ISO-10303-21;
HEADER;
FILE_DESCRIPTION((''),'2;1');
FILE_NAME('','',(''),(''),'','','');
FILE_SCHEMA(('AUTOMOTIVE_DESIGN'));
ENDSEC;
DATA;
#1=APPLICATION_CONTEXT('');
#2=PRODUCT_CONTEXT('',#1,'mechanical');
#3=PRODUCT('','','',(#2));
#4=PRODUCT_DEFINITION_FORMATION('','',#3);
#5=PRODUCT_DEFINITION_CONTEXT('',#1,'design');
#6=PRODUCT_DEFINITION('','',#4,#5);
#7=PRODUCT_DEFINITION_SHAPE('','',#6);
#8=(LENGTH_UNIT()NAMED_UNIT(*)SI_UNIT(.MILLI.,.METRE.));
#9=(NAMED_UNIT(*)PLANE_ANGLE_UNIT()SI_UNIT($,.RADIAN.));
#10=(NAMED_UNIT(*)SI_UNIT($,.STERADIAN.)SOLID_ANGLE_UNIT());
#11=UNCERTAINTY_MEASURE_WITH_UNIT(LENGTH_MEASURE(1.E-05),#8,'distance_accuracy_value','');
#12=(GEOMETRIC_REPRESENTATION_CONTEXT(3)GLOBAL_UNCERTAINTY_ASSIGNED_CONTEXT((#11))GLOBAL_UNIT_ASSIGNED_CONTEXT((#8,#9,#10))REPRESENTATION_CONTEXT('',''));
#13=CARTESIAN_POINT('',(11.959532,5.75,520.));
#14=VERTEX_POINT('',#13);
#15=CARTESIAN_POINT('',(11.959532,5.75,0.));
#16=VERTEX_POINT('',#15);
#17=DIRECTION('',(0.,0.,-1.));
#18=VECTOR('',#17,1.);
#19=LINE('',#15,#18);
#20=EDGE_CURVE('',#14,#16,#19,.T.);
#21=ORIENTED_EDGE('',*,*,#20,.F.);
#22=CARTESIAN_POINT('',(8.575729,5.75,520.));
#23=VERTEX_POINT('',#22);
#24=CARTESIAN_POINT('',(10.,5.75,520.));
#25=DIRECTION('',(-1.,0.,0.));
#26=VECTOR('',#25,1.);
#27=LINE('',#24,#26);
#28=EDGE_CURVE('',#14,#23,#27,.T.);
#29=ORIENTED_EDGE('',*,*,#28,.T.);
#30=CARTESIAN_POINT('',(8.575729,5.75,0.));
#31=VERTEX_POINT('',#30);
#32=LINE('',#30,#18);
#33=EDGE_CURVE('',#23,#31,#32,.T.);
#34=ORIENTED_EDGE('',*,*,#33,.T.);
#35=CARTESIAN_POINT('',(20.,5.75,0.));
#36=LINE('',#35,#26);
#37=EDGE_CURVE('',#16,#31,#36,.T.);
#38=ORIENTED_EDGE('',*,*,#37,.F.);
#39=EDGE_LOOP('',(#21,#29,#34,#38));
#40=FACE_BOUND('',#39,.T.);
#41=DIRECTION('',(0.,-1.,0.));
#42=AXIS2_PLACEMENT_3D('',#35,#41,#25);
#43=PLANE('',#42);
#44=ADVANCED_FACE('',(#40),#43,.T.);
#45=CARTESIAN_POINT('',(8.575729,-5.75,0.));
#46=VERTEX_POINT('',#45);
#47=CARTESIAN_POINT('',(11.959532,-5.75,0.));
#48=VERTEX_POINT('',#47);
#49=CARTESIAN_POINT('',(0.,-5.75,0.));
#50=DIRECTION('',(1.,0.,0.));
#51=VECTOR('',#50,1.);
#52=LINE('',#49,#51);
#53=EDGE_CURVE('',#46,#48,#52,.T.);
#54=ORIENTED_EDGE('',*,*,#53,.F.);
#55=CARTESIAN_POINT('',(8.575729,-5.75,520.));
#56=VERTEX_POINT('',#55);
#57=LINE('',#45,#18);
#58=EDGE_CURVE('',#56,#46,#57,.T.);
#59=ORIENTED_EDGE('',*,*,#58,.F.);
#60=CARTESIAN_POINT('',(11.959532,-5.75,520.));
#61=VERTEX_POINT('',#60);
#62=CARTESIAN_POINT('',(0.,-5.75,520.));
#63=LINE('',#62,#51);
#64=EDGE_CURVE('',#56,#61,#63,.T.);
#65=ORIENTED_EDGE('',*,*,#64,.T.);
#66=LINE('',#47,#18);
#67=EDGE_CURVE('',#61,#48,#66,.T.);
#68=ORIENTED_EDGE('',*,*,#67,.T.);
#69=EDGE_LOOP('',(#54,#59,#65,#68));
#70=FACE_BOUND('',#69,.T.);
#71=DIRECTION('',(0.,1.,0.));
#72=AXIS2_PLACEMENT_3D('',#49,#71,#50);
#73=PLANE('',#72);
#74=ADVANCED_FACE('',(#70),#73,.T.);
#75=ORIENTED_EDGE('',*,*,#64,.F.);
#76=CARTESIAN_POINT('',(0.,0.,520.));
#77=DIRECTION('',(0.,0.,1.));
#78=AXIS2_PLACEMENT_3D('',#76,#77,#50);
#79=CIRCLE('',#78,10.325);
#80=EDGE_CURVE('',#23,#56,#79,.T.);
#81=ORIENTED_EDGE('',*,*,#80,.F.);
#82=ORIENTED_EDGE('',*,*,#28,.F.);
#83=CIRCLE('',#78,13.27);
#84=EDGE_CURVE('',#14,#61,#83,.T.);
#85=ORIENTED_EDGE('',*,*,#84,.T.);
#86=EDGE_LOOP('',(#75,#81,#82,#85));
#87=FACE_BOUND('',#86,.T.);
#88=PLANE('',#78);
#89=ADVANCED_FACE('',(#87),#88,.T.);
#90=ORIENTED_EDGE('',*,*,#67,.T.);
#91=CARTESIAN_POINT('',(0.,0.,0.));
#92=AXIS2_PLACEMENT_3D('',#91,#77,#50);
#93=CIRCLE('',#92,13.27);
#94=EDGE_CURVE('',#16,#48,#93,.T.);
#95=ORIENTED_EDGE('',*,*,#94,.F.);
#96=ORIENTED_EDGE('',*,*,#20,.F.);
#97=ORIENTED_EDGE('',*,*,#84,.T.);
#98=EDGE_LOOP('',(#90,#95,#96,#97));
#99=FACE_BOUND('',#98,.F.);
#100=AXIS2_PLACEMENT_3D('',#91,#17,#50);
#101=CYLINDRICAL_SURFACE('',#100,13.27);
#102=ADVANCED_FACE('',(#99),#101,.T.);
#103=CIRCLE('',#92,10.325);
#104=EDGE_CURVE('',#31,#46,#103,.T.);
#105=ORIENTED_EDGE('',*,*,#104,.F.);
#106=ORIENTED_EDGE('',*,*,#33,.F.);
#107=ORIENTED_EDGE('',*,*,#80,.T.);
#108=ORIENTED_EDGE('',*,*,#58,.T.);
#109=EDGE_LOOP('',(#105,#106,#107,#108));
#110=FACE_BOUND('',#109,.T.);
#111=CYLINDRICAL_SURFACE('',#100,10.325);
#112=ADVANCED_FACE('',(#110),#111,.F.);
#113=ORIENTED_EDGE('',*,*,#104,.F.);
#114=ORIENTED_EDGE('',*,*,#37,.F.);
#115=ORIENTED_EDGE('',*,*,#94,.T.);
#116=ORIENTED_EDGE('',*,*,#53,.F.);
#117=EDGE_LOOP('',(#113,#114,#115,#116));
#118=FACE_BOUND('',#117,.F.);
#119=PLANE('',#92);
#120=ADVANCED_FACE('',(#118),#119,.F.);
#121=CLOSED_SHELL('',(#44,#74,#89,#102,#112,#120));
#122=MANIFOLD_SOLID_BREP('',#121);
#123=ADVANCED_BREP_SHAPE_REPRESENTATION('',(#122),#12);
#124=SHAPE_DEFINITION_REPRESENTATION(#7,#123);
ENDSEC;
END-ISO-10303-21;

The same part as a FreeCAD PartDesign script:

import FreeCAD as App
import Part
import Sketcher
from FreeCAD import Vector
Q = App.Units.Quantity

doc = App.newDocument("Part")
params = doc.addObject("Spreadsheet::Sheet", "Params")
for row, (alias, value) in enumerate([
    ("sketch1_diameter", "26.54 mm"),
    ("sketch1_diameter2", "20.65 mm"),
    ("pad1_length", "520 mm"),
    ("sketch2_width", "20 mm"),
    ("sketch2_height", "11.5 mm"),
    ("pocket1_length", "520 mm"),
], start=1):
    params.set(f"A{row}", alias)
    params.set(f"B{row}", "=" + value)
    params.setAlias(f"B{row}", alias)

body = doc.addObject("PartDesign::Body", "Body")

# Sketch on XY plane
sketch1 = body.newObject("Sketcher::SketchObject", "Sketch")
sketch1.AttachmentSupport = (doc.getObject("XY_Plane"), [""])
sketch1.MapMode = "FlatFace"
sketch1.addGeometry(Part.Circle(Vector(0, 0, 0), Vector(0, 0, 1), 13.27), False)
sketch1.addGeometry(Part.Circle(Vector(0, 0, 0), Vector(0, 0, 1), 10.325), False)
sketch1.addConstraint(Sketcher.Constraint("Coincident", 0, 3, -1, 1))
sketch1.addConstraint(Sketcher.Constraint("Coincident", 1, 3, -1, 1))
sketch1.addConstraint(Sketcher.Constraint("Diameter", 0, Q("26.54 mm")))
sketch1.addConstraint(Sketcher.Constraint("Diameter", 1, Q("20.65 mm")))
sketch1.setExpression("Constraints[2]", "Params.sketch1_diameter")
sketch1.setExpression("Constraints[3]", "Params.sketch1_diameter2")
pad1 = body.newObject("PartDesign::Pad", "Pad")
pad1.Profile = sketch1
pad1.setExpression("Length", "Params.pad1_length")

# Sketch on XY plane
sketch2 = body.newObject("Sketcher::SketchObject", "Sketch001")
sketch2.AttachmentSupport = (doc.getObject("XY_Plane"), [""])
sketch2.MapMode = "FlatFace"
sketch2.addGeometry(Part.LineSegment(Vector(0, 5.75, 0), Vector(20, 5.75, 0)), False)
sketch2.addGeometry(Part.LineSegment(Vector(20, 5.75, 0), Vector(20, -5.75, 0)), False)
sketch2.addGeometry(Part.LineSegment(Vector(20, -5.75, 0), Vector(0, -5.75, 0)), False)
sketch2.addGeometry(Part.LineSegment(Vector(0, -5.75, 0), Vector(0, 5.75, 0)), False)
sketch2.addConstraint(Sketcher.Constraint("Coincident", 0, 2, 1, 1))
sketch2.addConstraint(Sketcher.Constraint("Coincident", 1, 2, 2, 1))
sketch2.addConstraint(Sketcher.Constraint("Coincident", 2, 2, 3, 1))
sketch2.addConstraint(Sketcher.Constraint("Coincident", 3, 2, 0, 1))
sketch2.addConstraint(Sketcher.Constraint("Horizontal", 0))
sketch2.addConstraint(Sketcher.Constraint("Vertical", 1))
sketch2.addConstraint(Sketcher.Constraint("Horizontal", 2))
sketch2.addConstraint(Sketcher.Constraint("Vertical", 3))
sketch2.addConstraint(Sketcher.Constraint("Symmetric", 2, 2, 3, 2, -1, 1))
sketch2.addConstraint(Sketcher.Constraint("DistanceX", 0, 1, 0, 2, Q("20 mm")))
sketch2.addConstraint(Sketcher.Constraint("DistanceY", 1, 2, 1, 1, Q("11.5 mm")))
sketch2.setExpression("Constraints[9]", "Params.sketch2_width")
sketch2.setExpression("Constraints[10]", "Params.sketch2_height")
pocket1 = body.newObject("PartDesign::Pocket", "Pocket")
pocket1.Profile = sketch2
pocket1.setExpression("Length", "Params.pocket1_length")
pocket1.Reversed = True

doc.recompute()
